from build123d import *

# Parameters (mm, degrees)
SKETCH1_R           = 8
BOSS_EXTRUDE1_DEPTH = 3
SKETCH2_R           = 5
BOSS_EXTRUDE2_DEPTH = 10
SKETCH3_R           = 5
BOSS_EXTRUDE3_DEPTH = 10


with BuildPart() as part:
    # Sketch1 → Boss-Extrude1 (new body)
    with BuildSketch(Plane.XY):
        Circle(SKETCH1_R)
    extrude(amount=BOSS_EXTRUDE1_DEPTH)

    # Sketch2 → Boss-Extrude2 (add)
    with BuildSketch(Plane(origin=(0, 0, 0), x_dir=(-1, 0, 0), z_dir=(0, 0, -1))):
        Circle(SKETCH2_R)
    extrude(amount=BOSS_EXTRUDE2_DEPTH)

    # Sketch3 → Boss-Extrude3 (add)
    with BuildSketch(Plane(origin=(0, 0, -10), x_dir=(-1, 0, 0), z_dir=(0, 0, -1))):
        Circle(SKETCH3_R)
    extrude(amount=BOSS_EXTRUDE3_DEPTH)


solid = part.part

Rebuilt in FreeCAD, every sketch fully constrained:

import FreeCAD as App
import Part
import Sketcher

V = App.Vector
Q = App.Units.Quantity

doc = App.newDocument("Part")
params = doc.addObject("Spreadsheet::Sheet", "Params")
for row, (alias, value) in enumerate([
    ("sketch1_diameter", "16 mm"),
    ("pad1_length", "3 mm"),
    ("sketch2_diameter", "10 mm"),
    ("pad2_length", "10 mm"),
    ("sketch3_diameter", "10 mm"),
    ("pad3_length", "10 mm"),
], start=1):
    params.set(f"A{row}", alias)
    params.set(f"B{row}", "=" + value)
    params.setAlias(f"B{row}", alias)

body = doc.addObject("PartDesign::Body", "Body")

sketch1 = body.newObject("Sketcher::SketchObject", "Sketch")
sketch1.AttachmentSupport = (doc.getObject("XY_Plane"), [""])
sketch1.MapMode = "FlatFace"
sketch1.addGeometry(Part.Circle(V(0, 0, 0), V(0, 0, 1), 8), False)
sketch1.addConstraint([
    Sketcher.Constraint("Coincident", 0, 3, -1, 1),
    Sketcher.Constraint("Diameter", 0, Q("16 mm")),
])
sketch1.setExpression("Constraints[1]", "Params.sketch1_diameter")
pad1 = body.newObject("PartDesign::Pad", "Pad")
pad1.Profile = sketch1
pad1.setExpression("Length", "Params.pad1_length")

sketch2 = body.newObject("Sketcher::SketchObject", "Sketch001")
sketch2.AttachmentSupport = (doc.getObject("XY_Plane"), [""])
sketch2.MapMode = "FlatFace"
sketch2.addGeometry(Part.Circle(V(0, 0, 0), V(0, 0, 1), 5), False)
sketch2.addConstraint([
    Sketcher.Constraint("Coincident", 0, 3, -1, 1),
    Sketcher.Constraint("Diameter", 0, Q("10 mm")),
])
sketch2.setExpression("Constraints[1]", "Params.sketch2_diameter")
pad2 = body.newObject("PartDesign::Pad", "Pad001")
pad2.Profile = sketch2
pad2.setExpression("Length", "Params.pad2_length")
pad2.Reversed = True

sketch3 = body.newObject("Sketcher::SketchObject", "Sketch002")
sketch3.AttachmentSupport = (doc.getObject("XY_Plane"), [""])
sketch3.MapMode = "FlatFace"
sketch3.AttachmentOffset = App.Placement(V(0, 0, -10), App.Rotation())
sketch3.addGeometry(Part.Circle(V(0, 0, 0), V(0, 0, 1), 5), False)
sketch3.addConstraint([
    Sketcher.Constraint("Coincident", 0, 3, -1, 1),
    Sketcher.Constraint("Diameter", 0, Q("10 mm")),
])
sketch3.setExpression("Constraints[1]", "Params.sketch3_diameter")
pad3 = body.newObject("PartDesign::Pad", "Pad002")
pad3.Profile = sketch3
pad3.setExpression("Length", "Params.pad3_length")
pad3.Reversed = True

doc.recompute()
